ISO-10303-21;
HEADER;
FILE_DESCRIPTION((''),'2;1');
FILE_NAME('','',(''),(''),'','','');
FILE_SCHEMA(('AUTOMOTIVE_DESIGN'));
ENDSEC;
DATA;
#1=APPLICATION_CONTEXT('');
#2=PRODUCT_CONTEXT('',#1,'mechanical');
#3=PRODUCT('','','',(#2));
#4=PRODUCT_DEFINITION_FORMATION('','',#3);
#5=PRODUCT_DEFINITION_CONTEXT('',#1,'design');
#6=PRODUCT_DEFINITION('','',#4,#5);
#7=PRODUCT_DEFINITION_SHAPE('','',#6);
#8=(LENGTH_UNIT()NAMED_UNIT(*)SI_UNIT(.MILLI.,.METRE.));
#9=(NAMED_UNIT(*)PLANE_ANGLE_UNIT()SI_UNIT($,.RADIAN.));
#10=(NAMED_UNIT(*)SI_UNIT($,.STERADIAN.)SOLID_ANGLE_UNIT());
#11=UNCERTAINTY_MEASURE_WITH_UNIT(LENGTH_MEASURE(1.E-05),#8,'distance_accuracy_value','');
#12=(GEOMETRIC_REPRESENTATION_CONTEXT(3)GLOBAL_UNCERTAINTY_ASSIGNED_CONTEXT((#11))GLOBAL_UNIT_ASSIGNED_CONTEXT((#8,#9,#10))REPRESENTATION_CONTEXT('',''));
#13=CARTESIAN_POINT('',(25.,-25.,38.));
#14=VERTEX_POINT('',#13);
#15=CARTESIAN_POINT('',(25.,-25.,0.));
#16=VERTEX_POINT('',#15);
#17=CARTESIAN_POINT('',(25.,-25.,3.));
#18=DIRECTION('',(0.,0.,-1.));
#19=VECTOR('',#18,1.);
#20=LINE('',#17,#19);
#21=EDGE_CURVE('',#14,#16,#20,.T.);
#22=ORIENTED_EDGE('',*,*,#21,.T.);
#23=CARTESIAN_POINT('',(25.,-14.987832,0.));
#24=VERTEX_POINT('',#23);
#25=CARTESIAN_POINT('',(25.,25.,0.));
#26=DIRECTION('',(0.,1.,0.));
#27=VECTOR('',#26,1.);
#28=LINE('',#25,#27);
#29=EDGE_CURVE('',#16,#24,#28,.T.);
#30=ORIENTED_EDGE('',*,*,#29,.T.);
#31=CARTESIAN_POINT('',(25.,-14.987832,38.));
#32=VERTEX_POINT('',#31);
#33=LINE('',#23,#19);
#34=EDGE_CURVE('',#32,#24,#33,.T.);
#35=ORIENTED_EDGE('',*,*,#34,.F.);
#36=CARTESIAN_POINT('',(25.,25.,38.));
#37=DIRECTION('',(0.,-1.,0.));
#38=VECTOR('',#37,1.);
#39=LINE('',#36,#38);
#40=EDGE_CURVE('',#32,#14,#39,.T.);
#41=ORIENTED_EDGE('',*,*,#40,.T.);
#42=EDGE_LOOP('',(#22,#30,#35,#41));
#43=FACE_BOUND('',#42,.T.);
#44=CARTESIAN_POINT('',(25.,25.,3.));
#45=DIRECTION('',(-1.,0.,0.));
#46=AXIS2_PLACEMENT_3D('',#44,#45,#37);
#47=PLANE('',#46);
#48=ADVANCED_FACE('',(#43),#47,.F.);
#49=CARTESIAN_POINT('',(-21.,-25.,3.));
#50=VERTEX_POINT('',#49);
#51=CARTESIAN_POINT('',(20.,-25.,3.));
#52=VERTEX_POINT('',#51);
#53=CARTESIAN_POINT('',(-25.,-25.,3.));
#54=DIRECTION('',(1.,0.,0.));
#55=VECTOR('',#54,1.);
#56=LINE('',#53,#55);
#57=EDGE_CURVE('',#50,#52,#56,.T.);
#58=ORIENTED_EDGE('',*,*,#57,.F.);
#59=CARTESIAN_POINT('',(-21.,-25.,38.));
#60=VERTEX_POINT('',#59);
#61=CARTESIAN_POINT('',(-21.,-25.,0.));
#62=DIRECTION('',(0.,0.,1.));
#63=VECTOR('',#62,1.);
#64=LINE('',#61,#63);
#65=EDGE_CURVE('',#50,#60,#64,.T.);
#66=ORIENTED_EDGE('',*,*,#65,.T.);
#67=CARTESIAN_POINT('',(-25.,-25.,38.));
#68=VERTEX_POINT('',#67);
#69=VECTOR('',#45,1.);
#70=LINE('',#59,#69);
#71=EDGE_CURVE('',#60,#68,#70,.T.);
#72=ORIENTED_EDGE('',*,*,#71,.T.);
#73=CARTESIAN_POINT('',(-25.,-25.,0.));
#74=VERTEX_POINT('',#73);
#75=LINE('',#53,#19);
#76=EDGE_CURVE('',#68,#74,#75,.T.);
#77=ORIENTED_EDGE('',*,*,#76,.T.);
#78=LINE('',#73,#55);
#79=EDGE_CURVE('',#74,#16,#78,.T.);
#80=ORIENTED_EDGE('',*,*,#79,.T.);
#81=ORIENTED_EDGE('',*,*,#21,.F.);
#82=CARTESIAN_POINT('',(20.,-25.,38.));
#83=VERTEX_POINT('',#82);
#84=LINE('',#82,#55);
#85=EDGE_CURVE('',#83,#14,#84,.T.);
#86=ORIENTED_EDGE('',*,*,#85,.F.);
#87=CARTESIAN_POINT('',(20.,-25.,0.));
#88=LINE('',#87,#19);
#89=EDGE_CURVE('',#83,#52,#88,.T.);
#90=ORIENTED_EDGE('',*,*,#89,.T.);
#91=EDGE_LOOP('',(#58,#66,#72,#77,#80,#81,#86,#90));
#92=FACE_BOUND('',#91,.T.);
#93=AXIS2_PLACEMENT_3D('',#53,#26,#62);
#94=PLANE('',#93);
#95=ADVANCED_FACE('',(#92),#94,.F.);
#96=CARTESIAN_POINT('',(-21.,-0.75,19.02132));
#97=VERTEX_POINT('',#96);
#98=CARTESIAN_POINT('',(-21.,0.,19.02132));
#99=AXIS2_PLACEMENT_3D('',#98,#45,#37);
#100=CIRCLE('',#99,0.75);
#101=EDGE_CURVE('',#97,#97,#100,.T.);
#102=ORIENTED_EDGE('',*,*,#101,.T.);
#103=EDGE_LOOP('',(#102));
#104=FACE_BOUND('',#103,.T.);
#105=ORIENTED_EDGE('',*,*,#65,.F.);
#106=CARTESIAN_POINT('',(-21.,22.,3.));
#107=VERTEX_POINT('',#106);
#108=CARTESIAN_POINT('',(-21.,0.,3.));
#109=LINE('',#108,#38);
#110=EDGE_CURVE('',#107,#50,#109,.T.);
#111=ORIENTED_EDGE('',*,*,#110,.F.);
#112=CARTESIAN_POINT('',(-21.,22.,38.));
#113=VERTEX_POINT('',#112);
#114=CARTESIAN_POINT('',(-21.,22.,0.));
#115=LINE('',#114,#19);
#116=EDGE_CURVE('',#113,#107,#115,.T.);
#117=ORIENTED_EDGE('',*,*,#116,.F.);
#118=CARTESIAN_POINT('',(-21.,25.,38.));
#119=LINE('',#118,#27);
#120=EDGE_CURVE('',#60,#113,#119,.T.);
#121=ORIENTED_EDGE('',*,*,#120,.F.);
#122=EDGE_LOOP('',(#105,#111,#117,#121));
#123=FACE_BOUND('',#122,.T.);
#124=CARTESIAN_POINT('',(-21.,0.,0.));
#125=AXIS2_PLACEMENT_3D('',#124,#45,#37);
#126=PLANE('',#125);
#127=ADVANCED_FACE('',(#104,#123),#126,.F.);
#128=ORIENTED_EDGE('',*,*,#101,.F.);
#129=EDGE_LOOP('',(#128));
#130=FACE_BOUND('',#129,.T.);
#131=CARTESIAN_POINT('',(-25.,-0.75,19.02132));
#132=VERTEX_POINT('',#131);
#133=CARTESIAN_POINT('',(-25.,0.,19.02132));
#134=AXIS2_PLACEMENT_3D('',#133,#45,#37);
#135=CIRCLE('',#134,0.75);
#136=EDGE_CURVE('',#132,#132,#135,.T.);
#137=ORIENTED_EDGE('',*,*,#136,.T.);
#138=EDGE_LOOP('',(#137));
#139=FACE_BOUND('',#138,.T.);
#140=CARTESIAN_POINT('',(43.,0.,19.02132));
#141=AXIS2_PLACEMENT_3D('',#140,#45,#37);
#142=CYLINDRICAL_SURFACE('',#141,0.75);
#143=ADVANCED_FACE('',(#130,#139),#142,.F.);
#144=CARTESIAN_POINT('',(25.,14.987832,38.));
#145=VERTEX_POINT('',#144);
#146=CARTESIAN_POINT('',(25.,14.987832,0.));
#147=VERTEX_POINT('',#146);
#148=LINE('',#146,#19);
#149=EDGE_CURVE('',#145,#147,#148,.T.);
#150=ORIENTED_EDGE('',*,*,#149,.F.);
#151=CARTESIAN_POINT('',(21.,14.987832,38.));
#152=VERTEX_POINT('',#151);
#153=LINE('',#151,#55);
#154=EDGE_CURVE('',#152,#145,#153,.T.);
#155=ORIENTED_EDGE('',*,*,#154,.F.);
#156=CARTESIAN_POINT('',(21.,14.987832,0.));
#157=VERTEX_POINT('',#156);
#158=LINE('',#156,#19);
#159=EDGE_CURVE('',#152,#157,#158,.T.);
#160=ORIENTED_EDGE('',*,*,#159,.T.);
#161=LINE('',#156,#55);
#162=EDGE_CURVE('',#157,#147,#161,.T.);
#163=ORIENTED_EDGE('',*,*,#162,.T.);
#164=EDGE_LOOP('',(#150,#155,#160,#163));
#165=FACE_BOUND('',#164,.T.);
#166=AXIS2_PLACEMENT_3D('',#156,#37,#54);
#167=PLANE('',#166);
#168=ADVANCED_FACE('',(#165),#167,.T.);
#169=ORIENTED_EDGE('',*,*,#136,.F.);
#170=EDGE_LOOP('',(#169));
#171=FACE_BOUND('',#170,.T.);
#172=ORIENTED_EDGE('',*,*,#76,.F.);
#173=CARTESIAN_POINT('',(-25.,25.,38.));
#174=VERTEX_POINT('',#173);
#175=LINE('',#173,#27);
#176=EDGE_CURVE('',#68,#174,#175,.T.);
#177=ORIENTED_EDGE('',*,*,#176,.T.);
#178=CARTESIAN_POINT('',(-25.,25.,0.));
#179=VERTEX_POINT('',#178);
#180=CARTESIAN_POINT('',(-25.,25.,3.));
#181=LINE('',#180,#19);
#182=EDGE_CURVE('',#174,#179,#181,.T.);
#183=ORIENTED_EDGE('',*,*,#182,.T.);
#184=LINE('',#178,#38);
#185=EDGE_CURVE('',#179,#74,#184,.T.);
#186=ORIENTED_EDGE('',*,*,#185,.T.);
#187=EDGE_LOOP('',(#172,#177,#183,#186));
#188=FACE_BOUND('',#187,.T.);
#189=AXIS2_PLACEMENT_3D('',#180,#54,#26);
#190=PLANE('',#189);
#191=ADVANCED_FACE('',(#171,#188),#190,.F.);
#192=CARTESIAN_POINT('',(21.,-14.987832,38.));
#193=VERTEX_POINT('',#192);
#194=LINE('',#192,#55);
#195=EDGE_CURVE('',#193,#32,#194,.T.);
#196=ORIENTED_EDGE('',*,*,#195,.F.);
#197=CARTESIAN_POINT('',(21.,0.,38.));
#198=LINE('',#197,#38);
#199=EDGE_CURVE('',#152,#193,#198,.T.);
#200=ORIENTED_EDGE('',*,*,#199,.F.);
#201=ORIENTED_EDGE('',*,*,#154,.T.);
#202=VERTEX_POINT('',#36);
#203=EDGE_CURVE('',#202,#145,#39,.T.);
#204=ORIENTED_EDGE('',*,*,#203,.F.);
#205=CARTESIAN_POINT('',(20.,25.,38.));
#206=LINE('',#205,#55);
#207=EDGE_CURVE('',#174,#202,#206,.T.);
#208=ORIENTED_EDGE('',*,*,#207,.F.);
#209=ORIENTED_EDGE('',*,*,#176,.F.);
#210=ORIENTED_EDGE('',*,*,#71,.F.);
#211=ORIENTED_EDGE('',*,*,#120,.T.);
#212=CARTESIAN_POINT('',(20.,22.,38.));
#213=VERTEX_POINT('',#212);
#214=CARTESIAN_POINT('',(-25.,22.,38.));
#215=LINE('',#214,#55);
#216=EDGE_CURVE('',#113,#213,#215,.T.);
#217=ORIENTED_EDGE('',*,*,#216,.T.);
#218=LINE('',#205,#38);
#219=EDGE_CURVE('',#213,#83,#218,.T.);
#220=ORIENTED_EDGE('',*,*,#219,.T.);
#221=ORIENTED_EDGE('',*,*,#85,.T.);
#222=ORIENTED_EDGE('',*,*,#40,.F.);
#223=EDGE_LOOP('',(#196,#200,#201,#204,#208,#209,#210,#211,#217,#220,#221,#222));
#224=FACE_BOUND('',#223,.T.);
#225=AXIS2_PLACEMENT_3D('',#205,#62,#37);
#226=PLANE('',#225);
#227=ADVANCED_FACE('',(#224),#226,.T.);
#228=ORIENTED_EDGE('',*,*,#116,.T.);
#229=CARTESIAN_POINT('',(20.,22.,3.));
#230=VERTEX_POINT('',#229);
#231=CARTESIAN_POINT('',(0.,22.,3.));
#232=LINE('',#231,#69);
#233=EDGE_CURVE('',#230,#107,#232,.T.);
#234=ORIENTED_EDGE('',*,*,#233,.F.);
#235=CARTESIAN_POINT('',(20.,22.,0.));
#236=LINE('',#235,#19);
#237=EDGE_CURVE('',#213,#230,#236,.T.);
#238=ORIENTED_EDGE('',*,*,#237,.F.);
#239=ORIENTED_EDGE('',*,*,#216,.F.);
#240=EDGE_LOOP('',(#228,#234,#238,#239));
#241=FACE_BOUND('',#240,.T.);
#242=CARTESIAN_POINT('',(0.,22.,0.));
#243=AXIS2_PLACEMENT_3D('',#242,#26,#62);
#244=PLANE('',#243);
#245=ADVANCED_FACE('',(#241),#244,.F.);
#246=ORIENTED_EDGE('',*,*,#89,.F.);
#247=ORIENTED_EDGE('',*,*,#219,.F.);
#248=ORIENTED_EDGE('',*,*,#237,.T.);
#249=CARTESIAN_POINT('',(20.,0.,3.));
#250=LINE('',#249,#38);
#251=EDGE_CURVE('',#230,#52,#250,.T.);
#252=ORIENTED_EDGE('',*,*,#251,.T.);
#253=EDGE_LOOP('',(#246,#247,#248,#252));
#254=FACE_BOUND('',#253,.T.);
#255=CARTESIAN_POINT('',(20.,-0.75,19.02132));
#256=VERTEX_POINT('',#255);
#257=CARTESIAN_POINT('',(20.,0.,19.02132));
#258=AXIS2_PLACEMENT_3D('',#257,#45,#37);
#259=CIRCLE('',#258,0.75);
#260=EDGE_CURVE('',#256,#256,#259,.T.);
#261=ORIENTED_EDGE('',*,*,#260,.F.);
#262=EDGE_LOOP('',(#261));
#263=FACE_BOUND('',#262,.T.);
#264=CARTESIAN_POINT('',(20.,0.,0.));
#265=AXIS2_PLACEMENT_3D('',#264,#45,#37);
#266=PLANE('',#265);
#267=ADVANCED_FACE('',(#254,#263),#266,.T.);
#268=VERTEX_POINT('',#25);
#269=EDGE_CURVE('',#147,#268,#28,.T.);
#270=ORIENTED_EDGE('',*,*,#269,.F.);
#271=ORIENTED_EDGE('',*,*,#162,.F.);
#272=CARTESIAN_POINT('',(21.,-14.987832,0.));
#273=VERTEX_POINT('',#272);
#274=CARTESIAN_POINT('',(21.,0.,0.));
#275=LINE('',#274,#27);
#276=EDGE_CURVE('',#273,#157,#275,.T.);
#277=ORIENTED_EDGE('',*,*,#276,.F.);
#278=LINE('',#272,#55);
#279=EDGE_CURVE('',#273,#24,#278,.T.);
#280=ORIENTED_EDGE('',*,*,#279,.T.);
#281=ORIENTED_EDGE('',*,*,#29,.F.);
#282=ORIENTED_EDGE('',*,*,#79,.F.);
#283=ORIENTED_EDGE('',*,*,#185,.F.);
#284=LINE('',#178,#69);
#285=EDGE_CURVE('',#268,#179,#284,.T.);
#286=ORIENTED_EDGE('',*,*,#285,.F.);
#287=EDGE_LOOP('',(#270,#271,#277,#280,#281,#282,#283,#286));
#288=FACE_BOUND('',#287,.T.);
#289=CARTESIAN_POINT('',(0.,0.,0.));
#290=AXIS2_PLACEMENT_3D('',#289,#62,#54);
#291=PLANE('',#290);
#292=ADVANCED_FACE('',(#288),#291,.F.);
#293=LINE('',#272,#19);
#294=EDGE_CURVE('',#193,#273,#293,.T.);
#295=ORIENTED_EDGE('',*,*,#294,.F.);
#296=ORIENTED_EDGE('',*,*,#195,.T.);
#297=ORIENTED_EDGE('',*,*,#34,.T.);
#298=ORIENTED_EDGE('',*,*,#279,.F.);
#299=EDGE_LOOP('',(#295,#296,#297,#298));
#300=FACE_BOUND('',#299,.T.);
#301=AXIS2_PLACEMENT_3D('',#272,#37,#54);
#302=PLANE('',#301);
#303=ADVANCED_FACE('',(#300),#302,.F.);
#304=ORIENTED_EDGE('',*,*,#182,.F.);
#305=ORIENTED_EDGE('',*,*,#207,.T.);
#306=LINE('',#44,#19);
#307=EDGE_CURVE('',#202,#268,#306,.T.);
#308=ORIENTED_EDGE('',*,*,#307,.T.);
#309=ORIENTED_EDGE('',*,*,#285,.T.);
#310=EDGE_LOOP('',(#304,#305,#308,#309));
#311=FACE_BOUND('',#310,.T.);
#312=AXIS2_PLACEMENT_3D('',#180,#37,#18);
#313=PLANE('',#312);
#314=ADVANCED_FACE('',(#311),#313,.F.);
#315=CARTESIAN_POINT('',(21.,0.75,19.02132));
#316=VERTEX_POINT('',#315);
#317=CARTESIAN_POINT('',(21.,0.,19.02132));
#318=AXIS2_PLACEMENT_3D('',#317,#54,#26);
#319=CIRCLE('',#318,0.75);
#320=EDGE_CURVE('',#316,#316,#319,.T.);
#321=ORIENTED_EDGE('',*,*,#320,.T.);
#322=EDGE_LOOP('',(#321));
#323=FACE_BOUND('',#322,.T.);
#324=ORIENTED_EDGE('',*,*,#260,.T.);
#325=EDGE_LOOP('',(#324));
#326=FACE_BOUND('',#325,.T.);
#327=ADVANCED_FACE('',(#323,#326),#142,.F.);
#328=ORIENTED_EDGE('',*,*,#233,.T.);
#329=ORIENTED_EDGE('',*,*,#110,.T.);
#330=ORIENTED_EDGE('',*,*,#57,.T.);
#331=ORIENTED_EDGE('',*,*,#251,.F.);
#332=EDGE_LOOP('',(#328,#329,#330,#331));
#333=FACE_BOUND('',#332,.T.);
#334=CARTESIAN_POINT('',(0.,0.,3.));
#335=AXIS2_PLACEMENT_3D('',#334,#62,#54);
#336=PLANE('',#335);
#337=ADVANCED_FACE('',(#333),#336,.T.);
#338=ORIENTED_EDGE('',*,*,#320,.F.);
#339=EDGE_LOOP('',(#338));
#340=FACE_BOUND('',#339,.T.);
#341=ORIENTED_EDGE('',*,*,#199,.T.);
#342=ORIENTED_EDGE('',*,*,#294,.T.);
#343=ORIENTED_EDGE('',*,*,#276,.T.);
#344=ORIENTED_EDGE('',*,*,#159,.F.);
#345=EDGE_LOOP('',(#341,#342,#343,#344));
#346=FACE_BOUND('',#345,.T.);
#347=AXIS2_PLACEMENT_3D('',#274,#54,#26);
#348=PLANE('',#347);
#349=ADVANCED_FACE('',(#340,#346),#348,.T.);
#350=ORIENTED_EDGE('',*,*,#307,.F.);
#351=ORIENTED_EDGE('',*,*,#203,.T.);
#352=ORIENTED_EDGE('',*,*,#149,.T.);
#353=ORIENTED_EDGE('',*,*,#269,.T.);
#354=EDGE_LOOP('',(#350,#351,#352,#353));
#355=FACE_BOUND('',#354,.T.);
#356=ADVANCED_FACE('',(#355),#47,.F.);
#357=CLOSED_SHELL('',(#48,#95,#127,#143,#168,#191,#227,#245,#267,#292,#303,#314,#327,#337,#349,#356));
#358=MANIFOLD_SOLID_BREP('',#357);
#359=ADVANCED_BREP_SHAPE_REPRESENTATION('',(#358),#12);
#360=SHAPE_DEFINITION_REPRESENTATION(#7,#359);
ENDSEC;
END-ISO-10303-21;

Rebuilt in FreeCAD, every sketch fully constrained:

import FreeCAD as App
import Part
import Sketcher
Q = App.Units.Quantity


def add_polygon(sketch, points):
    """Adds a closed chain of lines whose ends are joined by coincident constraints."""
    first, n = sketch.GeometryCount, len(points)
    for a, b in zip(points, points[1:] + points[:1]):
        sketch.addGeometry(Part.LineSegment(App.Vector(*a, 0), App.Vector(*b, 0)), False)
    for i in range(n):
        sketch.addConstraint(Sketcher.Constraint("Coincident", first + i, 2, first + (i + 1) % n, 1))

doc = App.newDocument("Part")
body = doc.addObject("PartDesign::Body", "Body")

sketch1 = doc.addObject("Sketcher::SketchObject", "Sketch")
body.addObject(sketch1)
sketch1.AttachmentSupport = (doc.XY_Plane, [""])
sketch1.MapMode = "FlatFace"
add_polygon(sketch1, [(-25, 25), (-25, -25), (25, -25), (25, 25)])
sketch1.addConstraint([
    Sketcher.Constraint("Vertical", 0),
    Sketcher.Constraint("Horizontal", 1),
    Sketcher.Constraint("Vertical", 2),
    Sketcher.Constraint("Horizontal", 3),
    Sketcher.Constraint("Symmetric", 0, 2, 2, 2, -1, 1),
    Sketcher.Constraint("Equal", 3, 0),
    Sketcher.Constraint("DistanceX", 1, 1, 1, 2, Q("50 mm")),
])
pad1 = doc.addObject("PartDesign::Pad", "Pad")
body.addObject(pad1)
pad1.Profile = sketch1
pad1.Length = 3

sketch2 = doc.addObject("Sketcher::SketchObject", "Sketch001")
body.addObject(sketch2)
sketch2.AttachmentSupport = (doc.YZ_Plane, [""])
sketch2.MapMode = "FlatFace"
sketch2.AttachmentOffset = App.Placement(App.Vector(0, 0, 25), App.Rotation())
add_polygon(sketch2, [(25, 38), (-25, 38), (-25, 0), (25, 0)])
sketch2.addConstraint([
    Sketcher.Constraint("Horizontal", 0),
    Sketcher.Constraint("Vertical", 1),
    Sketcher.Constraint("Horizontal", 2),
    Sketcher.Constraint("Vertical", 3),
    Sketcher.Constraint("Symmetric", 1, 2, 2, 2, -1, 1),
    Sketcher.Constraint("DistanceX", 0, 2, 0, 1, Q("50 mm")),
    Sketcher.Constraint("DistanceY", 1, 2, 1, 1, Q("38 mm")),
])
pad2 = doc.addObject("PartDesign::Pad", "Pad001")
body.addObject(pad2)
pad2.Profile = sketch2
pad2.Length = 5
pad2.Reversed = True

sketch3 = doc.addObject("Sketcher::SketchObject", "Sketch002")
body.addObject(sketch3)
sketch3.AttachmentSupport = (doc.YZ_Plane, [""])
sketch3.MapMode = "FlatFace"
sketch3.AttachmentOffset = App.Placement(App.Vector(0, 0, -25), App.Rotation())
add_polygon(sketch3, [(25, 0), (-25, 0), (-25, 38), (25, 38)])
sketch3.addConstraint([
    Sketcher.Constraint("Horizontal", 0),
    Sketcher.Constraint("Vertical", 1),
    Sketcher.Constraint("Horizontal", 2),
    Sketcher.Constraint("Vertical", 3),
    Sketcher.Constraint("Symmetric", 0, 2, 3, 2, -1, 1),
    Sketcher.Constraint("DistanceX", 0, 2, 0, 1, Q("50 mm")),
    Sketcher.Constraint("DistanceY", 1, 1, 1, 2, Q("38 mm")),
])
pad3 = doc.addObject("PartDesign::Pad", "Pad002")
body.addObject(pad3)
pad3.Profile = sketch3
pad3.Length = 4

sketch4 = doc.addObject("Sketcher::SketchObject", "Sketch003")
body.addObject(sketch4)
sketch4.AttachmentSupport = (doc.XZ_Plane, [""])
sketch4.MapMode = "FlatFace"
sketch4.AttachmentOffset = App.Placement(App.Vector(0, 0, -25), App.Rotation())
add_polygon(sketch4, [(-25, 0), (-25, 38), (25, 38), (25, 0)])
sketch4.addConstraint([
    Sketcher.Constraint("Vertical", 0),
    Sketcher.Constraint("Horizontal", 1),
    Sketcher.Constraint("Vertical", 2),
    Sketcher.Constraint("Horizontal", 3),
    Sketcher.Constraint("Symmetric", 2, 2, 3, 2, -1, 1),
    Sketcher.Constraint("DistanceX", 1, 1, 1, 2, Q("50 mm")),
    Sketcher.Constraint("DistanceY", 0, 1, 0, 2, Q("38 mm")),
])
pad4 = doc.addObject("PartDesign::Pad", "Pad003")
body.addObject(pad4)
pad4.Profile = sketch4
pad4.Length = 3

sketch5 = doc.addObject("Sketcher::SketchObject", "Sketch004")
body.addObject(sketch5)
sketch5.AttachmentSupport = (doc.YZ_Plane, [""])
sketch5.MapMode = "FlatFace"
sketch5.AttachmentOffset = App.Placement(App.Vector(0, 0, 25), App.Rotation())
add_polygon(sketch5, [(15, 38), (-15, 38), (-15, 0), (15, 0)])
sketch5.addConstraint([
    Sketcher.Constraint("Horizontal", 0),
    Sketcher.Constraint("Vertical", 1),
    Sketcher.Constraint("Horizontal", 2),
    Sketcher.Constraint("Vertical", 3),
    Sketcher.Constraint("Symmetric", 1, 2, 2, 2, -1, 1),
    Sketcher.Constraint("DistanceY", 1, 2, 1, 1, Q("38 mm")),
    Sketcher.Constraint("DistanceX", 0, 2, 0, 1, Q("29.975665 mm")),
])
pocket1 = doc.addObject("PartDesign::Pocket", "Pocket")
body.addObject(pocket1)
pocket1.Profile = sketch5
pocket1.Length = 4

sketch6 = doc.addObject("Sketcher::SketchObject", "Sketch005")
body.addObject(sketch6)
sketch6.AttachmentSupport = (doc.YZ_Plane, [""])
sketch6.MapMode = "FlatFace"
sketch6.AttachmentOffset = App.Placement(App.Vector(0, 0, -25), App.Rotation())
sketch6.addGeometry(Part.Circle(App.Vector(0, 19, 0), App.Vector(0, 0, 1), 0.8), False)
sketch6.addConstraint([
    Sketcher.Constraint("PointOnObject", 0, 3, -2),
    Sketcher.Constraint("Diameter", 0, Q("1.5 mm")),
    Sketcher.Constraint("DistanceY", -1, 1, 0, 3, Q("19.02132 mm")),
])
pocket2 = doc.addObject("PartDesign::Pocket", "Pocket001")
body.addObject(pocket2)
pocket2.Profile = sketch6
pocket2.Length = 68
pocket2.Reversed = True

doc.recompute()
